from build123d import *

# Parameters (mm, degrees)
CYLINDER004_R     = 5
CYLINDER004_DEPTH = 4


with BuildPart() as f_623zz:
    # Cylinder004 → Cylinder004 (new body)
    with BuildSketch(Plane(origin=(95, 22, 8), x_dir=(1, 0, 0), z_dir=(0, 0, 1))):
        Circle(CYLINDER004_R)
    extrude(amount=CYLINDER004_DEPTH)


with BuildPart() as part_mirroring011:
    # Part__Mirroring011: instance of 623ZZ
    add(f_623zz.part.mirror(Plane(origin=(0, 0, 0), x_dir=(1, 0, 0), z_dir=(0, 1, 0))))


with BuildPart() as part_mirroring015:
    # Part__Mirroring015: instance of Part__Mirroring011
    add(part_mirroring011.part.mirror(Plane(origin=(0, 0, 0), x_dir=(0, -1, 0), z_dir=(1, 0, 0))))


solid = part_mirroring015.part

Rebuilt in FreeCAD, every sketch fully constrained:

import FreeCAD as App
import Part
import Sketcher
from FreeCAD import Vector
Q = App.Units.Quantity

doc = App.newDocument("Part")
params = doc.addObject("Spreadsheet::Sheet", "Params")
for row, (alias, value) in enumerate([
    ("sketch1_diameter", "10 mm"),
    ("pad1_length", "4 mm"),
], start=1):
    params.set(f"A{row}", alias)
    params.set(f"B{row}", "=" + value)
    params.setAlias(f"B{row}", alias)

body = doc.addObject("PartDesign::Body", "Body")

sketch1 = doc.addObject("Sketcher::SketchObject", "Sketch")
body.addObject(sketch1)
sketch1.AttachmentSupport = (doc.XY_Plane, [""])
sketch1.MapMode = "FlatFace"
sketch1.AttachmentOffset = App.Placement(Vector(0, 0, 8), App.Rotation())
sketch1.addGeometry(Part.Circle(Vector(95, 22, 0), Vector(0, 0, 1), 5), False)
sketch1.addConstraint(Sketcher.Constraint("Diameter", 0, Q("10 mm")))
sketch1.addConstraint(Sketcher.Constraint("DistanceX", -1, 1, 0, 3, Q("95 mm")))
sketch1.addConstraint(Sketcher.Constraint("DistanceY", -1, 1, 0, 3, Q("22 mm")))
sketch1.setExpression("Constraints[0]", "Params.sketch1_diameter")
pad1 = doc.addObject("PartDesign::Pad", "Pad")
body.addObject(pad1)
pad1.Profile = sketch1
pad1.setExpression("Length", "Params.pad1_length")
body2 = doc.addObject("PartDesign::Body", "Body001")
doc.recompute()

mirroring = doc.addObject("Part::Mirroring", "Mirroring")
mirroring.Source = body
mirroring.Base = Vector(0, 0, 0)
mirroring.Normal = Vector(0, 1, 0)
body2.BaseFeature = mirroring
doc.recompute()
body3 = doc.addObject("PartDesign::Body", "Body002")
doc.recompute()

mirroring2 = doc.addObject("Part::Mirroring", "Mirroring001")
mirroring2.Source = body2
mirroring2.Base = Vector(0, 0, 0)
mirroring2.Normal = Vector(1, 0, 0)
body3.BaseFeature = mirroring2
doc.recompute()
body.Visibility = False
body2.Visibility = False
mirroring.Visibility = False
mirroring2.Visibility = False

doc.recompute()
